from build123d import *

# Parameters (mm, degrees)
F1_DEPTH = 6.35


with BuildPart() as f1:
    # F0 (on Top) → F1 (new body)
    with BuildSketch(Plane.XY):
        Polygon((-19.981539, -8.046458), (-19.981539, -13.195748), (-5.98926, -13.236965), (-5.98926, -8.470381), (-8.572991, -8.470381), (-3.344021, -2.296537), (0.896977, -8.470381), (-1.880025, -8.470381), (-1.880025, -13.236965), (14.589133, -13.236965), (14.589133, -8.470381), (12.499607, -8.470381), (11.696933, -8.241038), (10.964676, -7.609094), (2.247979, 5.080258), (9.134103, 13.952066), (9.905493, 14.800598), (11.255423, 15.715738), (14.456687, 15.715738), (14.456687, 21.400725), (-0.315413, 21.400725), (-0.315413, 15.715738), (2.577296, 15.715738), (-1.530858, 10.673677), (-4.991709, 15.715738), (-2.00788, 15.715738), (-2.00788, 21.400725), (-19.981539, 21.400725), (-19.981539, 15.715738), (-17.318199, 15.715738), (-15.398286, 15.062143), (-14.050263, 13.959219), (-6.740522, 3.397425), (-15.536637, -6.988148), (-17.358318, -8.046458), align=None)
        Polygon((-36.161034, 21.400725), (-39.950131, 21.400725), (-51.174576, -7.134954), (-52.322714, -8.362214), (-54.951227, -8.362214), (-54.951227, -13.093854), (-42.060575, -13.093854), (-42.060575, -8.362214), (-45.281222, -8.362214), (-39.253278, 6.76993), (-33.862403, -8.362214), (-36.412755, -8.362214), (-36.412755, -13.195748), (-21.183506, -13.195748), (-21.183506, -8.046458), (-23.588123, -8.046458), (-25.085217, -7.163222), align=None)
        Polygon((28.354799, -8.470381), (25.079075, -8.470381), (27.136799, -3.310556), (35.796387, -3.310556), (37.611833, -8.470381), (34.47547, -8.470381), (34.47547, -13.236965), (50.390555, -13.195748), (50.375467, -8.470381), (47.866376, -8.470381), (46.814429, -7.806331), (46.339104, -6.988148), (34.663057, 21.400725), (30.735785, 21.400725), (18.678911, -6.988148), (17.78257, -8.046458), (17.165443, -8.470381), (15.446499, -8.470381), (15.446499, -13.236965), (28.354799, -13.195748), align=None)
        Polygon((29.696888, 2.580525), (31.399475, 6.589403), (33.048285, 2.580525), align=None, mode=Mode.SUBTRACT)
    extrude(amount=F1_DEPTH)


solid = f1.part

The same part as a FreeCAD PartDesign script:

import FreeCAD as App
import Part
import Sketcher
Q = App.Units.Quantity


def add_polygon(sketch, points):
    """Adds a closed chain of lines whose ends are joined by coincident constraints."""
    first, n = sketch.GeometryCount, len(points)
    for a, b in zip(points, points[1:] + points[:1]):
        sketch.addGeometry(Part.LineSegment(App.Vector(*a, 0), App.Vector(*b, 0)), False)
    for i in range(n):
        sketch.addConstraint(Sketcher.Constraint("Coincident", first + i, 2, first + (i + 1) % n, 1))

doc = App.newDocument("Part")
body = doc.addObject("PartDesign::Body", "Body")
body.AllowCompound = True

sketch1 = doc.addObject("Sketcher::SketchObject", "Sketch")
body.addObject(sketch1)
sketch1.AttachmentSupport = (doc.XY_Plane, [""])
sketch1.MapMode = "FlatFace"
add_polygon(sketch1, [(-20, -8), (-20, -13.2), (-6, -13.2), (-6, -8.5), (-8.6, -8.5), (-3.3, -2.3), (0.9, -8.5), (-1.9, -8.5), (-1.9, -13.2), (14.6, -13.2), (14.6, -8.5), (12.5, -8.5), (11.7, -8.2), (11, -7.6), (2.2, 5.1), (9.1, 14), (9.9, 14.8), (11.3, 15.7), (14.5, 15.7), (14.5, 21.4), (-0.3, 21.4), (-0.3, 15.7), (2.6, 15.7), (-1.5, 10.7), (-5, 15.7), (-2, 15.7), (-2, 21.4), (-20, 21.4), (-20, 15.7), (-17.3, 15.7), (-15.4, 15.1), (-14.1, 14), (-6.7, 3.4), (-15.5, -7), (-17.4, -8)])
add_polygon(sketch1, [(-36.2, 21.4), (-40, 21.4), (-51.2, -7.1), (-52.3, -8.4), (-55, -8.4), (-55, -13.1), (-42.1, -13.1), (-42.1, -8.4), (-45.3, -8.4), (-39.3, 6.8), (-33.9, -8.4), (-36.4, -8.4), (-36.4, -13.2), (-21.2, -13.2), (-21.2, -8), (-23.6, -8), (-25.1, -7.2)])
add_polygon(sketch1, [(28.4, -8.5), (25.1, -8.5), (27.1, -3.3), (35.8, -3.3), (37.6, -8.5), (34.5, -8.5), (34.5, -13.2), (50.4, -13.2), (50.4, -8.5), (47.9, -8.5), (46.8, -7.8), (46.3, -7), (34.7, 21.4), (30.7, 21.4), (18.7, -7), (17.8, -8), (17.2, -8.5), (15.4, -8.5), (15.4, -13.2), (28.4, -13.2)])
add_polygon(sketch1, [(33, 2.6), (29.7, 2.6), (31.4, 6.6)])
sketch1.addConstraint([
    Sketcher.Constraint("Vertical", 0),
    Sketcher.Constraint("Vertical", 2),
    Sketcher.Constraint("Horizontal", 3),
    Sketcher.Constraint("Horizontal", 6),
    Sketcher.Constraint("Vertical", 7),
    Sketcher.Constraint("Horizontal", 8),
    Sketcher.Constraint("Vertical", 9),
    Sketcher.Constraint("Horizontal", 10),
    Sketcher.Constraint("Horizontal", 17),
    Sketcher.Constraint("Vertical", 18),
    Sketcher.Constraint("Horizontal", 19),
    Sketcher.Constraint("Vertical", 20),
    Sketcher.Constraint("Horizontal", 21),
    Sketcher.Constraint("Horizontal", 24),
    Sketcher.Constraint("Vertical", 25),
    Sketcher.Constraint("Horizontal", 26),
    Sketcher.Constraint("Vertical", 27),
    Sketcher.Constraint("Horizontal", 28),
    Sketcher.Constraint("Horizontal", 34),
    Sketcher.Constraint("Horizontal", 35),
    Sketcher.Constraint("Horizontal", 38),
    Sketcher.Constraint("Vertical", 39),
    Sketcher.Constraint("Horizontal", 40),
    Sketcher.Constraint("Vertical", 41),
    Sketcher.Constraint("Horizontal", 42),
    Sketcher.Constraint("Horizontal", 45),
    Sketcher.Constraint("Vertical", 46),
    Sketcher.Constraint("Horizontal", 47),
    Sketcher.Constraint("Vertical", 48),
    Sketcher.Constraint("Horizontal", 49),
    Sketcher.Constraint("Horizontal", 52),
    Sketcher.Constraint("Horizontal", 54),
    Sketcher.Constraint("Horizontal", 56),
    Sketcher.Constraint("Vertical", 57),
    Sketcher.Constraint("Horizontal", 60),
    Sketcher.Constraint("Horizontal", 64),
    Sketcher.Constraint("Horizontal", 68),
    Sketcher.Constraint("Vertical", 69),
    Sketcher.Constraint("Vertical", 71),
    Sketcher.Constraint("Horizontal", 72),
    Sketcher.Constraint("Parallel", 5, 13),
    Sketcher.Constraint("Parallel", 4, 32),
    Sketcher.Constraint("Perpendicular", 33, 62),
    Sketcher.Constraint("Parallel", 32, 66),
    Sketcher.Constraint("Perpendicular", 13, 67),
    Sketcher.Constraint("Perpendicular", 59, 70),
    Sketcher.Constraint("Parallel", 65, 73),
    Sketcher.Constraint("Parallel", 63, 74),
    Sketcher.Constraint("Horizontal", 3, 2, 5, 2),
    Sketcher.Constraint("Horizontal", 1, 2, 7, 2),
    Sketcher.Constraint("Horizontal", 6, 2, 9, 2),
    Sketcher.Constraint("Horizontal", 17, 2, 20, 2),
    Sketcher.Constraint("Horizontal", 21, 2, 23, 2),
    Sketcher.Constraint("Horizontal", 19, 2, 25, 2),
    Sketcher.Constraint("Horizontal", 24, 2, 27, 2),
    Sketcher.Constraint("Horizontal", 26, 2, 35, 2),
    Sketcher.Constraint("Horizontal", 38, 2, 41, 2),
    Sketcher.Constraint("Horizontal", 42, 2, 44, 2),
    Sketcher.Constraint("Horizontal", 0, 2, 46, 2),
    Sketcher.Constraint("Horizontal", 34, 2, 48, 2),
    Sketcher.Constraint("Horizontal", 10, 2, 52, 2),
    Sketcher.Constraint("Horizontal", 52, 2, 55, 2),
    Sketcher.Constraint("Horizontal", 8, 2, 57, 2),
    Sketcher.Constraint("Horizontal", 47, 2, 58, 2),
    Sketcher.Constraint("Horizontal", 56, 2, 59, 2),
    Sketcher.Constraint("Horizontal", 32, 2, 62, 2),
    Sketcher.Constraint("Horizontal", 51, 2, 63, 2),
    Sketcher.Constraint("Horizontal", 62, 2, 65, 2),
    Sketcher.Constraint("Horizontal", 49, 2, 66, 2),
    Sketcher.Constraint("Horizontal", 60, 2, 67, 2),
    Sketcher.Constraint("Horizontal", 57, 2, 69, 2),
    Sketcher.Constraint("Horizontal", 58, 2, 70, 2),
    Sketcher.Constraint("Vertical", 0, 2, 26, 2),
    Sketcher.Constraint("DistanceX", 6, 2, 6, 1, Q("2.777002 mm")),
    Sketcher.Constraint("DistanceX", 19, 2, 19, 1, Q("14.7721 mm")),
    Sketcher.Constraint("DistanceX", -1, 1, 73, 2, Q("1.2361998 in")),
    Sketcher.Constraint("Distance", 53, Q("5.555 mm")),
    Sketcher.Constraint("DistanceX", 3, 2, 3, 1, Q("2.583731 mm")),
    Sketcher.Constraint("DistanceX", 8, 1, 8, 2, Q("16.469158 mm")),
    Sketcher.Constraint("DistanceX", 21, 1, 21, 2, Q("2.892709 mm")),
    Sketcher.Constraint("DistanceX", 24, 1, 24, 2, Q("2.983829 mm")),
    Sketcher.Constraint("DistanceX", 26, 2, 26, 1, Q("17.973659 mm")),
    Sketcher.Constraint("DistanceX", 28, 1, 28, 2, Q("2.66334 mm")),
    Sketcher.Constraint("DistanceX", 34, 2, 34, 1, Q("2.623221 mm")),
    Sketcher.Constraint("DistanceX", 45, 2, 45, 1, Q("2.550352 mm")),
    Sketcher.Constraint("DistanceX", 47, 1, 47, 2, Q("15.229249 mm")),
    Sketcher.Constraint("DistanceX", 54, 1, 54, 2, Q("8.659588 mm")),
    Sketcher.Constraint("DistanceX", 60, 2, 60, 1, Q("2.509091 mm")),
    Sketcher.Constraint("DistanceY", 0, 2, 0, 1, Q("5.14929 mm")),
    Sketcher.Constraint("DistanceY", 39, 2, 39, 1, Q("4.73164 mm")),
    Sketcher.Constraint("DistanceY", -1, 1, 15, 2, Q("14.800598 mm")),
    Sketcher.Constraint("DistanceX", 28, 2, -1, 1, Q("17.318199 mm")),
    Sketcher.Constraint("DistanceX", -1, 1, 53, 2, Q("27.136799 mm")),
    Sketcher.Constraint("DistanceX", -1, 1, 68, 2, Q("15.446499 mm")),
    Sketcher.Constraint("DistanceX", -1, 1, 70, 2, Q("28.354799 mm")),
    Sketcher.Constraint("Distance", 1, Q("13.99234 mm")),
    Sketcher.Constraint("Distance", 4, Q("8.090641 mm")),
    Sketcher.Constraint("Distance", 12, Q("0.96724 mm")),
    Sketcher.Constraint("Distance", 13, Q("15.394819 mm")),
    Sketcher.Constraint("Distance", 14, Q("11.230658 mm")),
    Sketcher.Constraint("Distance", 22, Q("6.503792 mm")),
    Sketcher.Constraint("Distance", 37, Q("1.680592 mm")),
    Sketcher.Constraint("Distance", 43, Q("16.288582 mm")),
    Sketcher.Constraint("Distance", 58, Q("15.915138 mm")),
    Sketcher.Constraint("Distance", 59, Q("4.725391 mm")),
    Sketcher.Constraint("Distance", 65, Q("30.843092 mm")),
    Sketcher.Constraint("DistanceX", 10, 2, 10, 1, Q("2.089526 mm")),
    Sketcher.Constraint("DistanceX", 17, 1, 17, 2, Q("3.201264 mm")),
    Sketcher.Constraint("DistanceX", 35, 2, 35, 1, Q("3.789097 mm")),
    Sketcher.Constraint("DistanceX", 38, 2, 38, 1, Q("2.628513 mm")),
    Sketcher.Constraint("DistanceX", 40, 1, 40, 2, Q("12.890652 mm")),
    Sketcher.Constraint("DistanceX", 42, 2, 42, 1, Q("3.220647 mm")),
    Sketcher.Constraint("DistanceX", 49, 2, 49, 1, Q("2.404617 mm")),
    Sketcher.Constraint("DistanceX", 52, 2, 52, 1, Q("3.275724 mm")),
    Sketcher.Constraint("DistanceX", 56, 2, 56, 1, Q("3.136363 mm")),
    Sketcher.Constraint("DistanceX", 64, 2, 64, 1, Q("3.927272 mm")),
    Sketcher.Constraint("DistanceX", 68, 2, 68, 1, Q("1.718944 mm")),
    Sketcher.Constraint("DistanceX", 72, 2, 72, 1, Q("3.351397 mm")),
    Sketcher.Constraint("DistanceY", 2, 1, 2, 2, Q("4.766584 mm")),
    Sketcher.Constraint("DistanceY", 18, 1, 18, 2, Q("5.684987 mm")),
    Sketcher.Constraint("DistanceY", 46, 2, 46, 1, Q("4.833534 mm")),
    Sketcher.Constraint("DistanceY", 2, 2, -1, 1, Q("8.470381 mm")),
    Sketcher.Constraint("DistanceX", 4, 2, -1, 1, Q("3.344021 mm")),
    Sketcher.Constraint("DistanceX", -1, 1, 13, 2, Q("2.247979 mm")),
    Sketcher.Constraint("DistanceY", -1, 1, 30, 2, Q("13.959219 mm")),
    Sketcher.Constraint("DistanceX", 35, 2, -1, 1, Q("39.950131 mm")),
    Sketcher.Constraint("DistanceX", 43, 2, -1, 1, Q("39.253278 mm")),
    Sketcher.Constraint("DistanceY", -1, 1, 43, 2, Q("6.76993 mm")),
    Sketcher.Constraint("DistanceX", -1, 1, 56, 2, Q("34.47547 mm")),
    Sketcher.Constraint("DistanceX", -1, 1, 61, 2, Q("46.814429 mm")),
    Sketcher.Constraint("DistanceY", 61, 2, -1, 1, Q("7.806331 mm")),
    Sketcher.Constraint("DistanceX", -1, 1, 65, 2, Q("18.678911 mm")),
    Sketcher.Constraint("DistanceX", -1, 1, 66, 2, Q("17.78257 mm")),
    Sketcher.Constraint("DistanceX", -1, 1, 72, 2, Q("29.696888 mm")),
    Sketcher.Constraint("Distance", 11, Q("0.834796 mm")),
    Sketcher.Constraint("Distance", 15, Q("1.146756 mm")),
    Sketcher.Constraint("Distance", 16, Q("1.630887 mm")),
    Sketcher.Constraint("Distance", 23, Q("6.115543 mm")),
    Sketcher.Constraint("Distance", 29, Q("2.028115 mm")),
    Sketcher.Constraint("Distance", 30, Q("1.741725 mm")),
    Sketcher.Constraint("Distance", 31, Q("12.844602 mm")),
    Sketcher.Constraint("Distance", 32, Q("13.609988 mm")),
    Sketcher.Constraint("Distance", 33, Q("2.106785 mm")),
    Sketcher.Constraint("Distance", 36, Q("30.663874 mm")),
    Sketcher.Constraint("Distance", 44, Q("16.063727 mm")),
    Sketcher.Constraint("Distance", 50, Q("1.738216 mm")),
    Sketcher.Constraint("Distance", 51, Q("30.636135 mm")),
    Sketcher.Constraint("DistanceX", -1, 1, 11, 2, Q("11.696933 mm")),
    Sketcher.Constraint("DistanceX", -1, 1, 14, 2, Q("9.134103 mm")),
    Sketcher.Constraint("DistanceY", -1, 1, 72, 2, Q("2.580525 mm")),
])
pad1 = doc.addObject("PartDesign::Pad", "Pad")
body.addObject(pad1)
pad1.Profile = sketch1
pad1.Length = Q("0.25 in")

doc.recompute()
